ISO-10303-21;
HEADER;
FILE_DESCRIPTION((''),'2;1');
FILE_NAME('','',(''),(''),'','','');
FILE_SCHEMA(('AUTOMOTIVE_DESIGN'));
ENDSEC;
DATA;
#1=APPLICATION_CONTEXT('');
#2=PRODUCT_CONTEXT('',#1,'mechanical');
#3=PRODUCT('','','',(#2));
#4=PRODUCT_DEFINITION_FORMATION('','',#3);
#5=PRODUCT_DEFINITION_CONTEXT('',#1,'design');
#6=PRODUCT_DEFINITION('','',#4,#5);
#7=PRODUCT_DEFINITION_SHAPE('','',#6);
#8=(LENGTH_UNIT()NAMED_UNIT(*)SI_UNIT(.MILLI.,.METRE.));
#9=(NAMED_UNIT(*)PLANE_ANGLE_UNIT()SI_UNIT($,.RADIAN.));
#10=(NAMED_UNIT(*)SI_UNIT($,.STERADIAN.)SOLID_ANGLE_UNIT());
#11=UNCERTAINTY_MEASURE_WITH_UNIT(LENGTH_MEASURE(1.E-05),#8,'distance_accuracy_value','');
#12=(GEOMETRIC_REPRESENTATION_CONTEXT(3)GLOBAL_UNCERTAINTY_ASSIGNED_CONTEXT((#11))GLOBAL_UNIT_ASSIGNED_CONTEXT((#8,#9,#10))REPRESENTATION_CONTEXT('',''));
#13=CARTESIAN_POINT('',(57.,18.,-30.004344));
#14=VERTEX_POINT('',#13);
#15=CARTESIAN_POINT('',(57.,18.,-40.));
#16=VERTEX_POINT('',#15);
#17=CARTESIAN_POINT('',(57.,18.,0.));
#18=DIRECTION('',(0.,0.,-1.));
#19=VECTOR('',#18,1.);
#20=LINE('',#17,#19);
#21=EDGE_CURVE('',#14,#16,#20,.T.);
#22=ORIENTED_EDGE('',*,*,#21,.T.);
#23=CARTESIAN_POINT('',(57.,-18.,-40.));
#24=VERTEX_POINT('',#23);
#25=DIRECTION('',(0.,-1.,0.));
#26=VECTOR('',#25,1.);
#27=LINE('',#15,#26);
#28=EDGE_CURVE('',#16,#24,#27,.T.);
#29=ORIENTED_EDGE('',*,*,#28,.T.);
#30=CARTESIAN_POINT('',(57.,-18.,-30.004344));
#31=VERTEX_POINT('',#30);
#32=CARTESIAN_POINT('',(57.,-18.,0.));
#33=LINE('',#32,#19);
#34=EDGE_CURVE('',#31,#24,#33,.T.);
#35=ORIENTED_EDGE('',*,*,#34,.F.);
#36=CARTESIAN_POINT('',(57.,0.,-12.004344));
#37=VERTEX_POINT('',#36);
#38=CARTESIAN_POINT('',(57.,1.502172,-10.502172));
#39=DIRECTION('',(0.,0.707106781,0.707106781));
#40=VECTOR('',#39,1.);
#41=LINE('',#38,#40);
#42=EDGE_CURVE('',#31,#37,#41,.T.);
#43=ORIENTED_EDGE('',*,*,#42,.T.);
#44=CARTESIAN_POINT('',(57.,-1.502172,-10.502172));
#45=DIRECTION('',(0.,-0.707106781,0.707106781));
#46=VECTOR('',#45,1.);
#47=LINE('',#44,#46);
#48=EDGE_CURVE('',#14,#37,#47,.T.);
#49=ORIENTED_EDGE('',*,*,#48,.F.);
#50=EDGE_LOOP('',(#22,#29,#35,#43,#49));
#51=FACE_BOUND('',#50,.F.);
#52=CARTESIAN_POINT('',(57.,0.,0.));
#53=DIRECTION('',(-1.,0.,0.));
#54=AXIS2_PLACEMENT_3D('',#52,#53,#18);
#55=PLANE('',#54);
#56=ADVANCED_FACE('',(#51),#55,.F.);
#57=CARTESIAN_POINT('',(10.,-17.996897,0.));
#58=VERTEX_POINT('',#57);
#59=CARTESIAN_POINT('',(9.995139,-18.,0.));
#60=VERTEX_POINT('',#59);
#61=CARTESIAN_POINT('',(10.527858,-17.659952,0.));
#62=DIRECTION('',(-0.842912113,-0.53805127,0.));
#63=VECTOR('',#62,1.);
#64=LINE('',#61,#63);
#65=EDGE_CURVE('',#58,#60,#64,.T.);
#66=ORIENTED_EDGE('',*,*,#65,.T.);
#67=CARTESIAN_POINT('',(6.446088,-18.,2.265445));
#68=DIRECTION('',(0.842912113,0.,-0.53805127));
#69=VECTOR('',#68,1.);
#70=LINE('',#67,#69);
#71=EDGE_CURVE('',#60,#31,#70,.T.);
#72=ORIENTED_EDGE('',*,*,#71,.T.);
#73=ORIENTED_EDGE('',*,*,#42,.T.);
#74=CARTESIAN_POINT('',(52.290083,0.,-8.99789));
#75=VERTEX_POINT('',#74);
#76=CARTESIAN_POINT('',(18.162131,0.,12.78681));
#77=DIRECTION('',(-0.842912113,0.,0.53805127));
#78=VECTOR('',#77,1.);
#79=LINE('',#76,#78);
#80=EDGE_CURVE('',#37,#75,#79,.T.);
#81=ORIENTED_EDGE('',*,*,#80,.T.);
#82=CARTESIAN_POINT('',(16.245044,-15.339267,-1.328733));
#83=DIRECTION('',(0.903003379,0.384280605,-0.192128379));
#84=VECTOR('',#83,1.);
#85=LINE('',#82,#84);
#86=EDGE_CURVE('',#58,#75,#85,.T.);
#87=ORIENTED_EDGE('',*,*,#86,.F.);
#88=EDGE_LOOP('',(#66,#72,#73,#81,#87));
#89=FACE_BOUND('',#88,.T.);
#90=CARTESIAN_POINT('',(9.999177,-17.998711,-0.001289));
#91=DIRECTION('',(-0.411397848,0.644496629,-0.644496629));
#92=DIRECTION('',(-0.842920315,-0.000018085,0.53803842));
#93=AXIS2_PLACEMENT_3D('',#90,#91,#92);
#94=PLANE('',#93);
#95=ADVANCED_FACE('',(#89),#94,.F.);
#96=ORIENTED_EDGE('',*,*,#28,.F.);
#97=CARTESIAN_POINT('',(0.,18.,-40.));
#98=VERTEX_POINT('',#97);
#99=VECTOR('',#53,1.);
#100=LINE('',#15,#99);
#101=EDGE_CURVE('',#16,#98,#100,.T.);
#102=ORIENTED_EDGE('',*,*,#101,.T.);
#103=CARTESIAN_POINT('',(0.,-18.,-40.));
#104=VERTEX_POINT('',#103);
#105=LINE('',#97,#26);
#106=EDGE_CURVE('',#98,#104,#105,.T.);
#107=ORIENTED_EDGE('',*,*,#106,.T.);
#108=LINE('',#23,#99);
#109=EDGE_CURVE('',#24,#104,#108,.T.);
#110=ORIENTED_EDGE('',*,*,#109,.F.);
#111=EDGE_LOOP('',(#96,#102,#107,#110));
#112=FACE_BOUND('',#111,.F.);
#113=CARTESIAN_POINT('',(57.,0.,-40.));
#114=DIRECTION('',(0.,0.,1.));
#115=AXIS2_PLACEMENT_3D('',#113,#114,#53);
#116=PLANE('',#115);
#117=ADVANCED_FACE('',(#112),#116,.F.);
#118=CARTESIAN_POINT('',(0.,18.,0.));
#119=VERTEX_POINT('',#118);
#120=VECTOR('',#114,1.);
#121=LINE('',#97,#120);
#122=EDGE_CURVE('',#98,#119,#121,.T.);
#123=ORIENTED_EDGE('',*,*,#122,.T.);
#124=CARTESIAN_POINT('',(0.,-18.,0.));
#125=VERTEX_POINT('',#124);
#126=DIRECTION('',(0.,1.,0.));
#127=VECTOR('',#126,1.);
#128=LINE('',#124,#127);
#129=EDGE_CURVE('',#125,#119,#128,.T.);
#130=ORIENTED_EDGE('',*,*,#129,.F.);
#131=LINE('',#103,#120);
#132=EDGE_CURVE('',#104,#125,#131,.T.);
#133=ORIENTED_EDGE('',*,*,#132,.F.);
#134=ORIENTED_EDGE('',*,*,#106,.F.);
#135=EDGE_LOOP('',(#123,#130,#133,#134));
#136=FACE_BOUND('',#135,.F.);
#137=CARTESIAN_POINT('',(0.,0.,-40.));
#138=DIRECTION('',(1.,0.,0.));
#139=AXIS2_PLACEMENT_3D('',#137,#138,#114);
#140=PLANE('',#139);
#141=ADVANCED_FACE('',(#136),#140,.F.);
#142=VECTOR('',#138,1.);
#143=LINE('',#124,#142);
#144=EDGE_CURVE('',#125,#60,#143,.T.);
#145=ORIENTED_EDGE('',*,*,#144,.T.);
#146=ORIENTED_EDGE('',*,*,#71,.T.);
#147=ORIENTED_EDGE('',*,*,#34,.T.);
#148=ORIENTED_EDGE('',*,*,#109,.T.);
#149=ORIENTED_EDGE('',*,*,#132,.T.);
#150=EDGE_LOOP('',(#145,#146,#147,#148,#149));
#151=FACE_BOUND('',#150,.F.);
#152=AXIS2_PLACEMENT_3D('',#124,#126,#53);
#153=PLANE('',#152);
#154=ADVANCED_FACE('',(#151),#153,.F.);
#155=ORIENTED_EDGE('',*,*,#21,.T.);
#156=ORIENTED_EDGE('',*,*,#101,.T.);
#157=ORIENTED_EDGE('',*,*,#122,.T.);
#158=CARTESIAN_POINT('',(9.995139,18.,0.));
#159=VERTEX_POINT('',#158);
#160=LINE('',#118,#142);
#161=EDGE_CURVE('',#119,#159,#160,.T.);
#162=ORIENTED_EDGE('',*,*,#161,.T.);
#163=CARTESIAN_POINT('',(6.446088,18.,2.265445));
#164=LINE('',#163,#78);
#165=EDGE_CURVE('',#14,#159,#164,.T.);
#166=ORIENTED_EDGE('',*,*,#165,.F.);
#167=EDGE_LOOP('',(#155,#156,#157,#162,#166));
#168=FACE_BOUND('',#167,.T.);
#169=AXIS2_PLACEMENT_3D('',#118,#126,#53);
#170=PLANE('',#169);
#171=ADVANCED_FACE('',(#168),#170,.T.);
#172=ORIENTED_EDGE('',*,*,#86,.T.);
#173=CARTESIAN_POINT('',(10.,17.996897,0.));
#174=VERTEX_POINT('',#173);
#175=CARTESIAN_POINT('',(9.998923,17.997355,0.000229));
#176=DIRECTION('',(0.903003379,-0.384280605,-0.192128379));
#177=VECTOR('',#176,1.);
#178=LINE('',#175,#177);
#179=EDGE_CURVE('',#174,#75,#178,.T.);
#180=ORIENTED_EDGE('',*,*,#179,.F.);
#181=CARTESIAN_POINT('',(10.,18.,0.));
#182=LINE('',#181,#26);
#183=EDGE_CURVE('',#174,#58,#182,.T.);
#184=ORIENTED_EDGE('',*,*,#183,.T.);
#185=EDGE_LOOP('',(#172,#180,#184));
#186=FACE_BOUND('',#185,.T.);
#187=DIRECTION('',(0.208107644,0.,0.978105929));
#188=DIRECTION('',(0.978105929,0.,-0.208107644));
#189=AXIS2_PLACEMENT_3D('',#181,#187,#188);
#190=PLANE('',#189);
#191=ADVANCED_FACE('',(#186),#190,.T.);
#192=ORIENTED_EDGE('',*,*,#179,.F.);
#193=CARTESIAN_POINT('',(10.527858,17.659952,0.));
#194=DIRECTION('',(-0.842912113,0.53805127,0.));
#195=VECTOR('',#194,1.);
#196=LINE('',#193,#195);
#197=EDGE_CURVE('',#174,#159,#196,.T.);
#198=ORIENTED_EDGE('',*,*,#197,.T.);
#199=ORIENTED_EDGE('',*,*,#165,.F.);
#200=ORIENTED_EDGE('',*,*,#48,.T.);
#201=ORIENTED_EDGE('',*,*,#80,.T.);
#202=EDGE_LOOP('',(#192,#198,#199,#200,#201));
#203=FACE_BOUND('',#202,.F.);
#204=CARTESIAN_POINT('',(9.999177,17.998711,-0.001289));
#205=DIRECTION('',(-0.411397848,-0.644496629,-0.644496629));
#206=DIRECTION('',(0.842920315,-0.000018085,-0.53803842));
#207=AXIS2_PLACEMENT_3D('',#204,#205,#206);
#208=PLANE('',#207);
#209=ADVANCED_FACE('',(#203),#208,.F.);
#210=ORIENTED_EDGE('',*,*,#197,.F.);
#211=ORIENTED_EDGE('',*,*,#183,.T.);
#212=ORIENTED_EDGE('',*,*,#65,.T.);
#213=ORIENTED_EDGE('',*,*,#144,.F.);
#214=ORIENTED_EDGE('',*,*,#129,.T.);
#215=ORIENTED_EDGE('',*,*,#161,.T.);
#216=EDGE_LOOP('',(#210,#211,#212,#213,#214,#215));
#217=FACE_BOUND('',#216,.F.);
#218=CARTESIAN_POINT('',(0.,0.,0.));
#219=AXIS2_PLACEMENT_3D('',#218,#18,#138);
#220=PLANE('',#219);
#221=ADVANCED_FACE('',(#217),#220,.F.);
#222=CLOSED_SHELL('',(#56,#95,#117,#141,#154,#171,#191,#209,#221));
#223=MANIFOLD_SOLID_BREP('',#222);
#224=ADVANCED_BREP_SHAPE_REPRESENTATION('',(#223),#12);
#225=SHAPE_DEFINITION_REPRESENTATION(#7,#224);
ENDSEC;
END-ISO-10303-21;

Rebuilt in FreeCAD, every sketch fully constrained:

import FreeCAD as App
import Part
import Sketcher
from FreeCAD import Vector
Q = App.Units.Quantity

doc = App.newDocument("Part")
body = doc.addObject("PartDesign::Body", "Body")

sketch1 = body.newObject("Sketcher::SketchObject", "Sketch")
sketch1.AttachmentSupport = (doc.getObject("XZ_Plane"), [""])
sketch1.MapMode = "FlatFace"
sketch1.addGeometry([
    Part.LineSegment(Vector(0, -40, 0), Vector(0, 0, 0)),
    Part.LineSegment(Vector(0, 0, 0), Vector(57, 0, 0)),
    Part.LineSegment(Vector(57, 0, 0), Vector(57, -40, 0)),
    Part.LineSegment(Vector(57, -40, 0), Vector(0, -40, 0)),
], False)
sketch1.addConstraint([
    Sketcher.Constraint("Coincident", 0, 2, 1, 1),
    Sketcher.Constraint("Coincident", 1, 2, 2, 1),
    Sketcher.Constraint("Coincident", 2, 2, 3, 1),
    Sketcher.Constraint("Coincident", 3, 2, 0, 1),
    Sketcher.Constraint("Vertical", 0),
    Sketcher.Constraint("Horizontal", 1),
    Sketcher.Constraint("Vertical", 2),
    Sketcher.Constraint("Horizontal", 3),
    Sketcher.Constraint("Coincident", 0, 2, -1, 1),
    Sketcher.Constraint("DistanceX", 1, 1, 1, 2, Q("57 mm")),
    Sketcher.Constraint("DistanceY", 0, 1, 0, 2, Q("40 mm")),
])
pad1 = body.newObject("PartDesign::Pad", "Pad")
pad1.Profile = sketch1
pad1.Length = 36
pad1.Midplane = True

sketch2 = body.newObject("Sketcher::SketchObject", "Sketch001")
sketch2.AttachmentSupport = (doc.getObject("XZ_Plane"), [""])
sketch2.MapMode = "FlatFace"
sketch2.AttachmentOffset = App.Placement(Vector(0, 0, -18), App.Rotation())
sketch2.addGeometry([
    Part.LineSegment(Vector(57, -10, 0), Vector(10, 0, 0)),
    Part.LineSegment(Vector(10, 0, 0), Vector(57, 0, 0)),
    Part.LineSegment(Vector(57, 0, 0), Vector(57, -10, 0)),
], False)
sketch2.addConstraint([
    Sketcher.Constraint("Coincident", 0, 2, 1, 1),
    Sketcher.Constraint("Coincident", 1, 2, 2, 1),
    Sketcher.Constraint("Coincident", 2, 2, 0, 1),
    Sketcher.Constraint("Horizontal", 1),
    Sketcher.Constraint("Vertical", 2),
    Sketcher.Constraint("PointOnObject", 0, 2, -1),
    Sketcher.Constraint("DistanceY", 2, 2, 2, 1, Q("10 mm")),
    Sketcher.Constraint("DistanceX", -1, 1, 0, 2, Q("10 mm")),
    Sketcher.Constraint("DistanceX", 1, 1, 1, 2, Q("47 mm")),
])
pocket1 = body.newObject("PartDesign::Pocket", "Pocket")
pocket1.Profile = sketch2
pocket1.Length = 40
pocket1.Reversed = True

sketch3 = body.newObject("Sketcher::SketchObject", "Sketch002")
sketch3.Placement = App.Placement(Vector(10, 18, 0), App.Rotation(Vector(0.842920315, -0.000018085, -0.53803842), Vector(0.346752292, -0.76460715, 0.543266742), Vector(-0.411397848, -0.644496629, -0.644496629), "ZXY"))
sketch3.addGeometry([
    Part.LineSegment(Vector(-15, 29, 0), Vector(-15, -12, 0)),
    Part.LineSegment(Vector(-15, -12, 0), Vector(94, -12, 0)),
    Part.LineSegment(Vector(94, -12, 0), Vector(94, 29, 0)),
    Part.LineSegment(Vector(94, 29, 0), Vector(-15, 29, 0)),
], False)
sketch3.addConstraint([
    Sketcher.Constraint("Coincident", 0, 2, 1, 1),
    Sketcher.Constraint("Coincident", 1, 2, 2, 1),
    Sketcher.Constraint("Coincident", 2, 2, 3, 1),
    Sketcher.Constraint("Coincident", 3, 2, 0, 1),
    Sketcher.Constraint("Vertical", 0),
    Sketcher.Constraint("Horizontal", 1),
    Sketcher.Constraint("Vertical", 2),
    Sketcher.Constraint("Horizontal", 3),
    Sketcher.Constraint("DistanceX", 1, 1, 1, 2, Q("108.8713 mm")),
    Sketcher.Constraint("DistanceY", 0, 2, 0, 1, Q("41.1384 mm")),
    Sketcher.Constraint("DistanceX", -1, 1, 1, 2, Q("93.717 mm")),
    Sketcher.Constraint("DistanceY", 0, 2, -1, 1, Q("12.3218 mm")),
])
pocket2 = body.newObject("PartDesign::Pocket", "Pocket001")
pocket2.Profile = sketch3
pocket2.Length = 40
doc.recompute()

mirrored = body.newObject("PartDesign::Mirrored", "Mirrored")
mirrored.Originals = [pocket2]
mirrored.MirrorPlane = (doc.getObject("XZ_Plane"), [""])
body.Tip = mirrored

doc.recompute()
